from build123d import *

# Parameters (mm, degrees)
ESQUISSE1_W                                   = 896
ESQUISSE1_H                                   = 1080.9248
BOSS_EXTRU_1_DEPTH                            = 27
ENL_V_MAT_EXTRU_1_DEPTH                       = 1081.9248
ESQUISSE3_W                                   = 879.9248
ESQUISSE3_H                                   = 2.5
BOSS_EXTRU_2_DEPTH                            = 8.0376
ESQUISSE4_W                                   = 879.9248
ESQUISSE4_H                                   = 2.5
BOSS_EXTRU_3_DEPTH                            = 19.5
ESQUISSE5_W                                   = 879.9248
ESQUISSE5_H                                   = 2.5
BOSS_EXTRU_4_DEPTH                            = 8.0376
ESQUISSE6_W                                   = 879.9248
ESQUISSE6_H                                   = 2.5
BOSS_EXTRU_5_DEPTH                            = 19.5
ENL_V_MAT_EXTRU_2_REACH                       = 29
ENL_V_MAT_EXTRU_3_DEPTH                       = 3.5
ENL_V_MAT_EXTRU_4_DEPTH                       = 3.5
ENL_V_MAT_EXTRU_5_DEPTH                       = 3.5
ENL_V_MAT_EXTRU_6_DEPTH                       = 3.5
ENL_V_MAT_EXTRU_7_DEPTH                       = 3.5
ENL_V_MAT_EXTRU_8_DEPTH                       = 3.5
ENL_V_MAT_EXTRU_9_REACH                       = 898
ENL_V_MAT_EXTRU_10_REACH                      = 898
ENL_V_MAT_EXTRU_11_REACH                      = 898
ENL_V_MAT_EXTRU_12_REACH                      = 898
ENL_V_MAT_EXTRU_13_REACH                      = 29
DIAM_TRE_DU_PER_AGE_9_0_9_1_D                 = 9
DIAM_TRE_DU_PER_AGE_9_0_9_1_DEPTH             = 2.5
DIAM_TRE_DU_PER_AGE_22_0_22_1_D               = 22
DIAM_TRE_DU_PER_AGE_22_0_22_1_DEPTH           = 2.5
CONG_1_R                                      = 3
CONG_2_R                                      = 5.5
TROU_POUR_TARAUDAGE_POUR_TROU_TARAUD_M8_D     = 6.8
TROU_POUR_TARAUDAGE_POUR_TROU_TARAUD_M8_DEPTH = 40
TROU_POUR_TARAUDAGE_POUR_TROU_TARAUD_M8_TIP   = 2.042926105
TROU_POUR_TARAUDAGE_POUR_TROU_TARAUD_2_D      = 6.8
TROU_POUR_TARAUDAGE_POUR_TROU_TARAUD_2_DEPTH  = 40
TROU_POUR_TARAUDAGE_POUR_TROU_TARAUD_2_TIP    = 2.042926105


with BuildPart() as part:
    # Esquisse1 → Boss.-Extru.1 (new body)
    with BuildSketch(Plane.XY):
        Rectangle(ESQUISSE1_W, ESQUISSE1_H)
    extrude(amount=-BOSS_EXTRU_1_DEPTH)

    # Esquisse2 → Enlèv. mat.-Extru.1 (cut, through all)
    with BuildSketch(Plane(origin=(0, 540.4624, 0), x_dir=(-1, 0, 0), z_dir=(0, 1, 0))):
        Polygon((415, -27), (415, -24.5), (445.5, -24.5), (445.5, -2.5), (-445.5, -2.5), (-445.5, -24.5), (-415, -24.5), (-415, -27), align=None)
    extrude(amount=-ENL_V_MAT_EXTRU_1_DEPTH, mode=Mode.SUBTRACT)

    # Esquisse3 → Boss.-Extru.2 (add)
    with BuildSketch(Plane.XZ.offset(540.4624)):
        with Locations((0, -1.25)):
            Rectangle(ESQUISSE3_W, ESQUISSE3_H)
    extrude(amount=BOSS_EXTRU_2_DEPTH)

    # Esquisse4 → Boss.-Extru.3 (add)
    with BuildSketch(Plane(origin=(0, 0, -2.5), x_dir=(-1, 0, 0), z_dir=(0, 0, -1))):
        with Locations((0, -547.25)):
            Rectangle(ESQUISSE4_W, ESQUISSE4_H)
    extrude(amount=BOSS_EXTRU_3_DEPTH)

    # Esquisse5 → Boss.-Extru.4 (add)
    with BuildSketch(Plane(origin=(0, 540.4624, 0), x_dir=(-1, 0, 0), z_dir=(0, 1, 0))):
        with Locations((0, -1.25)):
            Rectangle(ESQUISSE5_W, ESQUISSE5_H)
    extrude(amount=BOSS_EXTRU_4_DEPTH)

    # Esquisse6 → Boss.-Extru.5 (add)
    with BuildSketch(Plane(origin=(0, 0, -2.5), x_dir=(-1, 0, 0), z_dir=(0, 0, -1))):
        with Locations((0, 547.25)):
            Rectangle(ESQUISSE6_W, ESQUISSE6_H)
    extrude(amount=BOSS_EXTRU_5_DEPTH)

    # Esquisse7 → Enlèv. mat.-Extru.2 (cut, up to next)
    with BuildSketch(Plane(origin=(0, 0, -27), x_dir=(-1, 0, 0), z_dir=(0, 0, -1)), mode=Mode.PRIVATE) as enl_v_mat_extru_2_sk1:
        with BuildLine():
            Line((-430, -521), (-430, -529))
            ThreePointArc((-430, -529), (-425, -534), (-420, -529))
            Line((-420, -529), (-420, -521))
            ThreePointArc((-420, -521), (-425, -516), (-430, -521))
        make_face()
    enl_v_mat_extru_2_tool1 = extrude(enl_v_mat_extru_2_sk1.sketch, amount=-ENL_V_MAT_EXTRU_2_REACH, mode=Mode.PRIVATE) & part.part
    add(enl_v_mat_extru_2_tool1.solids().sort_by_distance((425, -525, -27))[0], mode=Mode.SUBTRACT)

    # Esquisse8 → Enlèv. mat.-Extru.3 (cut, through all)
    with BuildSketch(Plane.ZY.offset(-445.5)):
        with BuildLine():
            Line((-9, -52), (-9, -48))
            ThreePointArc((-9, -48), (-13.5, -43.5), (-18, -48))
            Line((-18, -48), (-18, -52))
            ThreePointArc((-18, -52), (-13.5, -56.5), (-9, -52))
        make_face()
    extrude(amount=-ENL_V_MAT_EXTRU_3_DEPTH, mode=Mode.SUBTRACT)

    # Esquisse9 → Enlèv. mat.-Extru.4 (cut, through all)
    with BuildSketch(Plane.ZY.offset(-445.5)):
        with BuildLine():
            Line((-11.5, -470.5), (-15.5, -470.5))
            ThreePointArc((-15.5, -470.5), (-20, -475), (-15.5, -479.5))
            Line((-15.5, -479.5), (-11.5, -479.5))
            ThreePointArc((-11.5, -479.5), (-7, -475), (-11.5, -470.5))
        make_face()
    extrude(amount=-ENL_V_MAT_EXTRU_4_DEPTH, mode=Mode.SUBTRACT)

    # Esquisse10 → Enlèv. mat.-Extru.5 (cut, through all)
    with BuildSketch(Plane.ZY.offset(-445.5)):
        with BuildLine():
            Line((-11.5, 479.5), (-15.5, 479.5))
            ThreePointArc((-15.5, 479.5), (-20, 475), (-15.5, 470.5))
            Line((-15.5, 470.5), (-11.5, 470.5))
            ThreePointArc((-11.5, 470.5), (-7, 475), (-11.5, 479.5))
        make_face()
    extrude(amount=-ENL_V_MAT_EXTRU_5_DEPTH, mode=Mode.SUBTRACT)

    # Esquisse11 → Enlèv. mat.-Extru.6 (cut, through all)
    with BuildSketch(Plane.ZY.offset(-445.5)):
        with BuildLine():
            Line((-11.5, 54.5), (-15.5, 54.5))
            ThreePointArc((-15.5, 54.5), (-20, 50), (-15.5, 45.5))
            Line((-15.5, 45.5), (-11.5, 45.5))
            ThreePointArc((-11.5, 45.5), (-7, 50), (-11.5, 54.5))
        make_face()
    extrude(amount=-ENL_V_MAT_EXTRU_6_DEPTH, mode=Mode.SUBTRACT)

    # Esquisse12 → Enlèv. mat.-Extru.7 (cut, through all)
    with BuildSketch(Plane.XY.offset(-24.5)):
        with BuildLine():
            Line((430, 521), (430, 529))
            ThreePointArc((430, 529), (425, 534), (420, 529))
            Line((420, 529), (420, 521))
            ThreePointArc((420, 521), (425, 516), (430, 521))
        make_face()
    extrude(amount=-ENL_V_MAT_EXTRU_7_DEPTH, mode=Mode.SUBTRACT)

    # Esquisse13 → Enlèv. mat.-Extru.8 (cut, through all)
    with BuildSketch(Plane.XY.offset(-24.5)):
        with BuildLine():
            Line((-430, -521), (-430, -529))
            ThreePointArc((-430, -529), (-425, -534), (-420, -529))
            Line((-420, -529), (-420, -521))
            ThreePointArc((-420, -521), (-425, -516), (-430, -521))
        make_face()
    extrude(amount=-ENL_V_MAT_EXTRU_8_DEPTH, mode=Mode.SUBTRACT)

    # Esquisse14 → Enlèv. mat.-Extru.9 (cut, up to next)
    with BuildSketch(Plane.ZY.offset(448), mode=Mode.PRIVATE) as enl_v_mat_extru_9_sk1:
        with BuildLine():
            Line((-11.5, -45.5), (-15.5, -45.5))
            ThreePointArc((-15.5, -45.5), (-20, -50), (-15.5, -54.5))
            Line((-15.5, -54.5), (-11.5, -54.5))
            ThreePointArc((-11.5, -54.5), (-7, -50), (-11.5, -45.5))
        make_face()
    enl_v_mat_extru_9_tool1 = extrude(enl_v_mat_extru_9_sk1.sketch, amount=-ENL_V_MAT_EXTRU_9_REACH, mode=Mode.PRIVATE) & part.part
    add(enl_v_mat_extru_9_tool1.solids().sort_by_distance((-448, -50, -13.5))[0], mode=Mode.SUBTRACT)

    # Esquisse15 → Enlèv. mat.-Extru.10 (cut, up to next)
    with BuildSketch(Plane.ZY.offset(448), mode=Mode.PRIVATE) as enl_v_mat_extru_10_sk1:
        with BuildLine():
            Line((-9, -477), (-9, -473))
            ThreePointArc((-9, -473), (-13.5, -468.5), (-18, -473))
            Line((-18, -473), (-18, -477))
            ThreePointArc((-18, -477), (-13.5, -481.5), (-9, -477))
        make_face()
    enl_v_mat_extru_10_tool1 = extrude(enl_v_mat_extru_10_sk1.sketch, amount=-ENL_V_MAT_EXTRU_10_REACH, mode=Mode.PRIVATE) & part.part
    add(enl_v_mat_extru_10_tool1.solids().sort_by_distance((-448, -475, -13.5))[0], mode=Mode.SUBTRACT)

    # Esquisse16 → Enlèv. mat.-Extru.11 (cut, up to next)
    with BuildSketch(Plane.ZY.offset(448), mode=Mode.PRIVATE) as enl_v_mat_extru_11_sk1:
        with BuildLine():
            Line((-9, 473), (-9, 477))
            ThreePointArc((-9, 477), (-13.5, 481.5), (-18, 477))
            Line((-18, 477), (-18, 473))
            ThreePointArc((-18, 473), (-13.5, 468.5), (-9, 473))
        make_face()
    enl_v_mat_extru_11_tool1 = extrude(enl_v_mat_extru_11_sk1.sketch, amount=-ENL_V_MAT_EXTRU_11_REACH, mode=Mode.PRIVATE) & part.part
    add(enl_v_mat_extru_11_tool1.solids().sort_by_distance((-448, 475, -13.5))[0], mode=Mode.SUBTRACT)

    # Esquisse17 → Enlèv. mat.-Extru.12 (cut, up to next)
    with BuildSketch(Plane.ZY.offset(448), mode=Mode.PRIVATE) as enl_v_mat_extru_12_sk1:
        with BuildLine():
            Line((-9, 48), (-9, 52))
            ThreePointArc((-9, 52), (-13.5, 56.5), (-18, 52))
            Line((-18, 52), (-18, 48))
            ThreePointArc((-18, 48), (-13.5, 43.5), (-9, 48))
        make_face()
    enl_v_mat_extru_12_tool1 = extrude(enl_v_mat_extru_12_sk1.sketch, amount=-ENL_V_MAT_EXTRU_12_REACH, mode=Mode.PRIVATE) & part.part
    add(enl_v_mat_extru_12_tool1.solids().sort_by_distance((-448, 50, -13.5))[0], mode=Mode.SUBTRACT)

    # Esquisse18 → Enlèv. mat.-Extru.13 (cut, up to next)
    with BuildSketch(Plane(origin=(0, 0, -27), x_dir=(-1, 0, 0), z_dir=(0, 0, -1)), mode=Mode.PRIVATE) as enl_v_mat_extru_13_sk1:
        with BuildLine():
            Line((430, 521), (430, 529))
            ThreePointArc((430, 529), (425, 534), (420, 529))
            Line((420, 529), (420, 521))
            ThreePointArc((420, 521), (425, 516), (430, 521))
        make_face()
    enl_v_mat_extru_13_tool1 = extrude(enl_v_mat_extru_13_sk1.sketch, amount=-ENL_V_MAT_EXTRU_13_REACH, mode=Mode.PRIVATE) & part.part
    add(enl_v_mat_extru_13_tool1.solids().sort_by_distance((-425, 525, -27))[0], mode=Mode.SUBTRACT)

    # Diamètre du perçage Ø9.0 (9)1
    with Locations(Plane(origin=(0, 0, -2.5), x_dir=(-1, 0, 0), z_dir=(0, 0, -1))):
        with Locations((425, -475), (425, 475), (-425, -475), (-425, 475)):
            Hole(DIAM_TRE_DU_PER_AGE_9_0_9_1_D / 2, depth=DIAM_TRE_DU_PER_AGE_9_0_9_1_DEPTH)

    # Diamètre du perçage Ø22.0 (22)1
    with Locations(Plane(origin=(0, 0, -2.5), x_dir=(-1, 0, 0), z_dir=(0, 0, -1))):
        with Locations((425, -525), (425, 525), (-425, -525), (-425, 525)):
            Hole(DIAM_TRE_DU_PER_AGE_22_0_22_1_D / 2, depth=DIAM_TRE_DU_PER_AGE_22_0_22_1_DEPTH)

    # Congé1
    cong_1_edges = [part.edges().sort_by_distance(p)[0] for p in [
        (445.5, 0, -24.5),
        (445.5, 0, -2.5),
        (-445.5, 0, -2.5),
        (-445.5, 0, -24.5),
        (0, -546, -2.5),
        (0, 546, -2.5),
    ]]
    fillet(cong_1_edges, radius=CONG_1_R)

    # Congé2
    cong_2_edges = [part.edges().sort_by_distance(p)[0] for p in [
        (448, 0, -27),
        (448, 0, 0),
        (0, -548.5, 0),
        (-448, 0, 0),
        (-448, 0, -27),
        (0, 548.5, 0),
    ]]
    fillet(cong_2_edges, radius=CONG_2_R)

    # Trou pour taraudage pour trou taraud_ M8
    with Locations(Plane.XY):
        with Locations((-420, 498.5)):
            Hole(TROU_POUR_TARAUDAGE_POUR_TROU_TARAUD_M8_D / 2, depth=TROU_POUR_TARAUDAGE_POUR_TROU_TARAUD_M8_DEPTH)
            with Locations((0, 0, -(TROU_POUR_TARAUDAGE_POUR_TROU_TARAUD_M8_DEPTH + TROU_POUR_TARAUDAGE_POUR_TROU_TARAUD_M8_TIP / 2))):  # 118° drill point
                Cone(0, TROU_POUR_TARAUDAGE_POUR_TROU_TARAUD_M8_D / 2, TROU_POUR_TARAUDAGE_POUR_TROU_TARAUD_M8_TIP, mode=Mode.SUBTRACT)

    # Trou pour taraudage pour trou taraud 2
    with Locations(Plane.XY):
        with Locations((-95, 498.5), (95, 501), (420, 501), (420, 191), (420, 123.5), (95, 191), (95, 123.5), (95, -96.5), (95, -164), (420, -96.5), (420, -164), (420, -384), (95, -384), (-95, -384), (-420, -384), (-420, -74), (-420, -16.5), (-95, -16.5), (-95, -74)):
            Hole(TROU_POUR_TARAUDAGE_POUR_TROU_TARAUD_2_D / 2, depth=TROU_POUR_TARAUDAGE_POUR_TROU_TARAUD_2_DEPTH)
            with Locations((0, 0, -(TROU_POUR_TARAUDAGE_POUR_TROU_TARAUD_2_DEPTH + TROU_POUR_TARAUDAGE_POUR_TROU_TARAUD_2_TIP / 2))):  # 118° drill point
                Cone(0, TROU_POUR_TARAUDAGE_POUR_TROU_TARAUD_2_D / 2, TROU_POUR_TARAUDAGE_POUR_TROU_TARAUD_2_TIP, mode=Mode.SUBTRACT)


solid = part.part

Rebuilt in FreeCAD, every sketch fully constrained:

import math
import FreeCAD as App
import Part
import Sketcher

V = App.Vector


def edges_at(feature, points):
    """Names of the edges that pass closest to the given points."""
    edges = feature.Shape.Edges
    near = lambda p: min(range(len(edges)), key=lambda i: edges[i].distToShape(Part.Vertex(*p))[0])
    return sorted({f"Edge{near(p) + 1}" for p in points})

doc = App.newDocument("Part")
body = doc.addObject("PartDesign::Body", "Body")

# Sketch on XY plane
sketch1 = body.newObject("Sketcher::SketchObject", "Sketch")
sketch1.AttachmentSupport = (doc.getObject("XY_Plane"), [""])
sketch1.MapMode = "FlatFace"
sketch1.addGeometry(Part.LineSegment(V(-448, 540, 0), V(-448, -540, 0)), False)
sketch1.addGeometry(Part.LineSegment(V(-448, -540, 0), V(448, -540, 0)), False)
sketch1.addGeometry(Part.LineSegment(V(448, -540, 0), V(448, 540, 0)), False)
sketch1.addGeometry(Part.LineSegment(V(448, 540, 0), V(-448, 540, 0)), False)
sketch1.addConstraint(Sketcher.Constraint("Coincident", 0, 2, 1, 1))
sketch1.addConstraint(Sketcher.Constraint("Coincident", 1, 2, 2, 1))
sketch1.addConstraint(Sketcher.Constraint("Coincident", 2, 2, 3, 1))
sketch1.addConstraint(Sketcher.Constraint("Coincident", 3, 2, 0, 1))
sketch1.addConstraint(Sketcher.Constraint("Vertical", 0))
sketch1.addConstraint(Sketcher.Constraint("Horizontal", 1))
sketch1.addConstraint(Sketcher.Constraint("Vertical", 2))
sketch1.addConstraint(Sketcher.Constraint("Horizontal", 3))
sketch1.addConstraint(Sketcher.Constraint("Symmetric", 0, 2, 2, 2, -1, 1))
sketch1.addConstraint(Sketcher.Constraint("DistanceX", 1, 1, 1, 2, 896.0))
sketch1.addConstraint(Sketcher.Constraint("DistanceY", 0, 2, 0, 1, 1080.9248))
pad1 = body.newObject("PartDesign::Pad", "Pad")
pad1.Profile = sketch1
pad1.Length = 27
pad1.Reversed = True

# Sketch on XZ plane
sketch2 = body.newObject("Sketcher::SketchObject", "Sketch001")
sketch2.AttachmentSupport = (doc.getObject("XZ_Plane"), [""])
sketch2.MapMode = "FlatFace"
sketch2.AttachmentOffset = App.Placement(V(0, 0, -540.4624), App.Rotation())
sketch2.addGeometry(Part.LineSegment(V(-415, -27, 0), V(-415, -24.5, 0)), False)
sketch2.addGeometry(Part.LineSegment(V(-415, -24.5, 0), V(-445.5, -24.5, 0)), False)
sketch2.addGeometry(Part.LineSegment(V(-445.5, -24.5, 0), V(-445.5, -2.5, 0)), False)
sketch2.addGeometry(Part.LineSegment(V(-445.5, -2.5, 0), V(445.5, -2.5, 0)), False)
sketch2.addGeometry(Part.LineSegment(V(445.5, -2.5, 0), V(445.5, -24.5, 0)), False)
sketch2.addGeometry(Part.LineSegment(V(445.5, -24.5, 0), V(415, -24.5, 0)), False)
sketch2.addGeometry(Part.LineSegment(V(415, -24.5, 0), V(415, -27, 0)), False)
sketch2.addGeometry(Part.LineSegment(V(415, -27, 0), V(-415, -27, 0)), False)
sketch2.addConstraint(Sketcher.Constraint("Coincident", 0, 2, 1, 1))
sketch2.addConstraint(Sketcher.Constraint("Coincident", 1, 2, 2, 1))
sketch2.addConstraint(Sketcher.Constraint("Coincident", 2, 2, 3, 1))
sketch2.addConstraint(Sketcher.Constraint("Coincident", 3, 2, 4, 1))
sketch2.addConstraint(Sketcher.Constraint("Coincident", 4, 2, 5, 1))
sketch2.addConstraint(Sketcher.Constraint("Coincident", 5, 2, 6, 1))
sketch2.addConstraint(Sketcher.Constraint("Coincident", 6, 2, 7, 1))
sketch2.addConstraint(Sketcher.Constraint("Coincident", 7, 2, 0, 1))
sketch2.addConstraint(Sketcher.Constraint("Vertical", 0))
sketch2.addConstraint(Sketcher.Constraint("Horizontal", 1))
sketch2.addConstraint(Sketcher.Constraint("Vertical", 2))
sketch2.addConstraint(Sketcher.Constraint("Horizontal", 3))
sketch2.addConstraint(Sketcher.Constraint("Vertical", 4))
sketch2.addConstraint(Sketcher.Constraint("Horizontal", 5))
sketch2.addConstraint(Sketcher.Constraint("Vertical", 6))
sketch2.addConstraint(Sketcher.Constraint("Horizontal", 7))
sketch2.addConstraint(Sketcher.Constraint("Symmetric", 1, 2, 4, 2, -2))
sketch2.addConstraint(Sketcher.Constraint("Equal", 1, 5))
sketch2.addConstraint(Sketcher.Constraint("DistanceX", 3, 1, 3, 2, 891.0))
sketch2.addConstraint(Sketcher.Constraint("DistanceX", 7, 2, 7, 1, 830.0))
sketch2.addConstraint(Sketcher.Constraint("DistanceY", 2, 1, 2, 2, 22.0))
sketch2.addConstraint(Sketcher.Constraint("DistanceY", 0, 1, 0, 2, 2.5))
sketch2.addConstraint(Sketcher.Constraint("DistanceY", 6, 2, -1, 1, 27.0))
pocket1 = body.newObject("PartDesign::Pocket", "Pocket")
pocket1.Profile = sketch2
pocket1.Type = "ThroughAll"
pocket1.Reversed = True

# Sketch on XZ plane
sketch3 = body.newObject("Sketcher::SketchObject", "Sketch002")
sketch3.AttachmentSupport = (doc.getObject("XZ_Plane"), [""])
sketch3.MapMode = "FlatFace"
sketch3.AttachmentOffset = App.Placement(V(0, 0, 540.4624), App.Rotation())
sketch3.addGeometry(Part.LineSegment(V(-440, 0, 0), V(-440, -2.5, 0)), False)
sketch3.addGeometry(Part.LineSegment(V(-440, -2.5, 0), V(440, -2.5, 0)), False)
sketch3.addGeometry(Part.LineSegment(V(440, -2.5, 0), V(440, 0, 0)), False)
sketch3.addGeometry(Part.LineSegment(V(440, 0, 0), V(-440, 0, 0)), False)
sketch3.addConstraint(Sketcher.Constraint("Coincident", 0, 2, 1, 1))
sketch3.addConstraint(Sketcher.Constraint("Coincident", 1, 2, 2, 1))
sketch3.addConstraint(Sketcher.Constraint("Coincident", 2, 2, 3, 1))
sketch3.addConstraint(Sketcher.Constraint("Coincident", 3, 2, 0, 1))
sketch3.addConstraint(Sketcher.Constraint("Vertical", 0))
sketch3.addConstraint(Sketcher.Constraint("Horizontal", 1))
sketch3.addConstraint(Sketcher.Constraint("Vertical", 2))
sketch3.addConstraint(Sketcher.Constraint("Horizontal", 3))
sketch3.addConstraint(Sketcher.Constraint("Symmetric", 2, 2, 3, 2, -1, 1))
sketch3.addConstraint(Sketcher.Constraint("DistanceY", 0, 2, 0, 1, 2.5))
sketch3.addConstraint(Sketcher.Constraint("DistanceX", 1, 1, 1, 2, 879.9248))
pad2 = body.newObject("PartDesign::Pad", "Pad001")
pad2.Profile = sketch3
pad2.Length = 8.0376

# Sketch on XY plane
sketch4 = body.newObject("Sketcher::SketchObject", "Sketch003")
sketch4.AttachmentSupport = (doc.getObject("XY_Plane"), [""])
sketch4.MapMode = "FlatFace"
sketch4.AttachmentOffset = App.Placement(V(0, 0, -2.5), App.Rotation())
sketch4.addGeometry(Part.LineSegment(V(440, -546, 0), V(440, -548.5, 0)), False)
sketch4.addGeometry(Part.LineSegment(V(440, -548.5, 0), V(-440, -548.5, 0)), False)
sketch4.addGeometry(Part.LineSegment(V(-440, -548.5, 0), V(-440, -546, 0)), False)
sketch4.addGeometry(Part.LineSegment(V(-440, -546, 0), V(440, -546, 0)), False)
sketch4.addConstraint(Sketcher.Constraint("Coincident", 0, 2, 1, 1))
sketch4.addConstraint(Sketcher.Constraint("Coincident", 1, 2, 2, 1))
sketch4.addConstraint(Sketcher.Constraint("Coincident", 2, 2, 3, 1))
sketch4.addConstraint(Sketcher.Constraint("Coincident", 3, 2, 0, 1))
sketch4.addConstraint(Sketcher.Constraint("Vertical", 0))
sketch4.addConstraint(Sketcher.Constraint("Horizontal", 1))
sketch4.addConstraint(Sketcher.Constraint("Vertical", 2))
sketch4.addConstraint(Sketcher.Constraint("Horizontal", 3))
sketch4.addConstraint(Sketcher.Constraint("DistanceY", 0, 2, 0, 1, 2.5))
sketch4.addConstraint(Sketcher.Constraint("DistanceY", 2, 2, -1, 1, 546.0))
sketch4.addConstraint(Sketcher.Constraint("DistanceX", 1, 2, 1, 1, 879.9248))
sketch4.addConstraint(Sketcher.Constraint("DistanceX", -1, 1, 0, 2, 439.9624))
pad3 = body.newObject("PartDesign::Pad", "Pad002")
pad3.Profile = sketch4
pad3.Length = 19.5
pad3.Reversed = True

# Sketch on XZ plane
sketch5 = body.newObject("Sketcher::SketchObject", "Sketch004")
sketch5.AttachmentSupport = (doc.getObject("XZ_Plane"), [""])
sketch5.MapMode = "FlatFace"
sketch5.AttachmentOffset = App.Placement(V(0, 0, -540.4624), App.Rotation())
sketch5.addGeometry(Part.LineSegment(V(440, 0, 0), V(440, -2.5, 0)), False)
sketch5.addGeometry(Part.LineSegment(V(440, -2.5, 0), V(-440, -2.5, 0)), False)
sketch5.addGeometry(Part.LineSegment(V(-440, -2.5, 0), V(-440, 0, 0)), False)
sketch5.addGeometry(Part.LineSegment(V(-440, 0, 0), V(440, 0, 0)), False)
sketch5.addConstraint(Sketcher.Constraint("Coincident", 0, 2, 1, 1))
sketch5.addConstraint(Sketcher.Constraint("Coincident", 1, 2, 2, 1))
sketch5.addConstraint(Sketcher.Constraint("Coincident", 2, 2, 3, 1))
sketch5.addConstraint(Sketcher.Constraint("Coincident", 3, 2, 0, 1))
sketch5.addConstraint(Sketcher.Constraint("Vertical", 0))
sketch5.addConstraint(Sketcher.Constraint("Horizontal", 1))
sketch5.addConstraint(Sketcher.Constraint("Vertical", 2))
sketch5.addConstraint(Sketcher.Constraint("Horizontal", 3))
sketch5.addConstraint(Sketcher.Constraint("Symmetric", 2, 2, 3, 2, -1, 1))
sketch5.addConstraint(Sketcher.Constraint("DistanceY", 0, 2, 0, 1, 2.5))
sketch5.addConstraint(Sketcher.Constraint("DistanceX", 1, 2, 1, 1, 879.9248))
pad4 = body.newObject("PartDesign::Pad", "Pad003")
pad4.Profile = sketch5
pad4.Length = 8.0376
pad4.Reversed = True

# Sketch on XY plane
sketch6 = body.newObject("Sketcher::SketchObject", "Sketch005")
sketch6.AttachmentSupport = (doc.getObject("XY_Plane"), [""])
sketch6.MapMode = "FlatFace"
sketch6.AttachmentOffset = App.Placement(V(0, 0, -2.5), App.Rotation())
sketch6.addGeometry(Part.LineSegment(V(440, 548.5, 0), V(440, 546, 0)), False)
sketch6.addGeometry(Part.LineSegment(V(440, 546, 0), V(-440, 546, 0)), False)
sketch6.addGeometry(Part.LineSegment(V(-440, 546, 0), V(-440, 548.5, 0)), False)
sketch6.addGeometry(Part.LineSegment(V(-440, 548.5, 0), V(440, 548.5, 0)), False)
sketch6.addConstraint(Sketcher.Constraint("Coincident", 0, 2, 1, 1))
sketch6.addConstraint(Sketcher.Constraint("Coincident", 1, 2, 2, 1))
sketch6.addConstraint(Sketcher.Constraint("Coincident", 2, 2, 3, 1))
sketch6.addConstraint(Sketcher.Constraint("Coincident", 3, 2, 0, 1))
sketch6.addConstraint(Sketcher.Constraint("Vertical", 0))
sketch6.addConstraint(Sketcher.Constraint("Horizontal", 1))
sketch6.addConstraint(Sketcher.Constraint("Vertical", 2))
sketch6.addConstraint(Sketcher.Constraint("Horizontal", 3))
sketch6.addConstraint(Sketcher.Constraint("DistanceY", 0, 2, 0, 1, 2.5))
sketch6.addConstraint(Sketcher.Constraint("DistanceY", -1, 1, 0, 2, 546.0))
sketch6.addConstraint(Sketcher.Constraint("DistanceX", 1, 2, 1, 1, 879.9248))
sketch6.addConstraint(Sketcher.Constraint("DistanceX", -1, 1, 0, 2, 439.9624))
pad5 = body.newObject("PartDesign::Pad", "Pad004")
pad5.Profile = sketch6
pad5.Length = 19.5
pad5.Reversed = True

# Sketch on XY plane
sketch7 = body.newObject("Sketcher::SketchObject", "Sketch006")
sketch7.AttachmentSupport = (doc.getObject("XY_Plane"), [""])
sketch7.MapMode = "FlatFace"
sketch7.AttachmentOffset = App.Placement(V(0, 0, -27), App.Rotation())
sketch7.addGeometry(Part.LineSegment(V(430, -521, 0), V(430, -529, 0)), False)
sketch7.addGeometry(Part.ArcOfCircle(Part.Circle(V(425, -529, 0), V(0, 0, 1), 5), math.radians(180), math.radians(360)), False)
sketch7.addGeometry(Part.LineSegment(V(420, -529, 0), V(420, -521, 0)), False)
sketch7.addGeometry(Part.ArcOfCircle(Part.Circle(V(425, -521, 0), V(0, 0, 1), 5), math.radians(0), math.radians(180)), False)
sketch7.addConstraint(Sketcher.Constraint("Tangent", 0, 2, 1, 2))
sketch7.addConstraint(Sketcher.Constraint("Tangent", 1, 1, 2, 1))
sketch7.addConstraint(Sketcher.Constraint("Tangent", 2, 2, 3, 2))
sketch7.addConstraint(Sketcher.Constraint("Tangent", 3, 1, 0, 1))
sketch7.addConstraint(Sketcher.Constraint("Vertical", 0))
sketch7.addConstraint(Sketcher.Constraint("Vertical", 2))
sketch7.addConstraint(Sketcher.Constraint("Radius", 1, 5.0))
sketch7.addConstraint(Sketcher.Constraint("DistanceY", 0, 2, 0, 1, 8.0))
sketch7.addConstraint(Sketcher.Constraint("DistanceX", -1, 1, 1, 3, 425.0))
sketch7.addConstraint(Sketcher.Constraint("DistanceY", 1, 3, -1, 1, 529.0))
pocket2 = body.newObject("PartDesign::Pocket", "Pocket001")
pocket2.Profile = sketch7
pocket2.Type = "UpToFirst"
pocket2.Reversed = True

# Sketch on YZ plane
sketch8 = body.newObject("Sketcher::SketchObject", "Sketch007")
sketch8.AttachmentSupport = (doc.getObject("YZ_Plane"), [""])
sketch8.MapMode = "FlatFace"
sketch8.AttachmentOffset = App.Placement(V(0, 0, 445.5), App.Rotation())
sketch8.addGeometry(Part.LineSegment(V(-52, -9, 0), V(-48, -9, 0)), False)
sketch8.addGeometry(Part.ArcOfCircle(Part.Circle(V(-48, -13.5, 0), V(0, 0, 1), 4.5), math.radians(-90), math.radians(90)), False)
sketch8.addGeometry(Part.LineSegment(V(-48, -18, 0), V(-52, -18, 0)), False)
sketch8.addGeometry(Part.ArcOfCircle(Part.Circle(V(-52, -13.5, 0), V(0, 0, 1), 4.5), math.radians(90), math.radians(270)), False)
sketch8.addConstraint(Sketcher.Constraint("Tangent", 0, 2, 1, 2))
sketch8.addConstraint(Sketcher.Constraint("Tangent", 1, 1, 2, 1))
sketch8.addConstraint(Sketcher.Constraint("Tangent", 2, 2, 3, 2))
sketch8.addConstraint(Sketcher.Constraint("Tangent", 3, 1, 0, 1))
sketch8.addConstraint(Sketcher.Constraint("Horizontal", 0))
sketch8.addConstraint(Sketcher.Constraint("Horizontal", 2))
sketch8.addConstraint(Sketcher.Constraint("Radius", 1, 4.5))
sketch8.addConstraint(Sketcher.Constraint("DistanceX", 0, 1, 0, 2, 4.0))
sketch8.addConstraint(Sketcher.Constraint("DistanceX", 1, 3, -1, 1, 48.0))
sketch8.addConstraint(Sketcher.Constraint("DistanceY", 0, 2, -1, 1, 9.0))
pocket3 = body.newObject("PartDesign::Pocket", "Pocket002")
pocket3.Profile = sketch8
pocket3.Type = "ThroughAll"
pocket3.Reversed = True

# Sketch on YZ plane
sketch9 = body.newObject("Sketcher::SketchObject", "Sketch008")
sketch9.AttachmentSupport = (doc.getObject("YZ_Plane"), [""])
sketch9.MapMode = "FlatFace"
sketch9.AttachmentOffset = App.Placement(V(0, 0, 445.5), App.Rotation())
sketch9.addGeometry(Part.LineSegment(V(-470.5, -11.5, 0), V(-470.5, -15.5, 0)), False)
sketch9.addGeometry(Part.ArcOfCircle(Part.Circle(V(-475, -15.5, 0), V(0, 0, 1), 4.5), math.radians(180), math.radians(360)), False)
sketch9.addGeometry(Part.LineSegment(V(-479.5, -15.5, 0), V(-479.5, -11.5, 0)), False)
sketch9.addGeometry(Part.ArcOfCircle(Part.Circle(V(-475, -11.5, 0), V(0, 0, 1), 4.5), math.radians(0), math.radians(180)), False)
sketch9.addConstraint(Sketcher.Constraint("Tangent", 0, 2, 1, 2))
sketch9.addConstraint(Sketcher.Constraint("Tangent", 1, 1, 2, 1))
sketch9.addConstraint(Sketcher.Constraint("Tangent", 2, 2, 3, 2))
sketch9.addConstraint(Sketcher.Constraint("Tangent", 3, 1, 0, 1))
sketch9.addConstraint(Sketcher.Constraint("Vertical", 0))
sketch9.addConstraint(Sketcher.Constraint("Vertical", 2))
sketch9.addConstraint(Sketcher.Constraint("Radius", 1, 4.5))
sketch9.addConstraint(Sketcher.Constraint("DistanceY", 0, 2, 0, 1, 4.0))
sketch9.addConstraint(Sketcher.Constraint("DistanceX", 1, 3, -1, 1, 475.0))
sketch9.addConstraint(Sketcher.Constraint("DistanceY", 1, 3, -1, 1, 15.5))
pocket4 = body.newObject("PartDesign::Pocket", "Pocket003")
pocket4.Profile = sketch9
pocket4.Type = "ThroughAll"
pocket4.Reversed = True

# Sketch on YZ plane
sketch10 = body.newObject("Sketcher::SketchObject", "Sketch009")
sketch10.AttachmentSupport = (doc.getObject("YZ_Plane"), [""])
sketch10.MapMode = "FlatFace"
sketch10.AttachmentOffset = App.Placement(V(0, 0, 445.5), App.Rotation())
sketch10.addGeometry(Part.LineSegment(V(479.5, -11.5, 0), V(479.5, -15.5, 0)), False)
sketch10.addGeometry(Part.ArcOfCircle(Part.Circle(V(475, -15.5, 0), V(0, 0, 1), 4.5), math.radians(180), math.radians(360)), False)
sketch10.addGeometry(Part.LineSegment(V(470.5, -15.5, 0), V(470.5, -11.5, 0)), False)
sketch10.addGeometry(Part.ArcOfCircle(Part.Circle(V(475, -11.5, 0), V(0, 0, 1), 4.5), math.radians(0), math.radians(180)), False)
sketch10.addConstraint(Sketcher.Constraint("Tangent", 0, 2, 1, 2))
sketch10.addConstraint(Sketcher.Constraint("Tangent", 1, 1, 2, 1))
sketch10.addConstraint(Sketcher.Constraint("Tangent", 2, 2, 3, 2))
sketch10.addConstraint(Sketcher.Constraint("Tangent", 3, 1, 0, 1))
sketch10.addConstraint(Sketcher.Constraint("Vertical", 0))
sketch10.addConstraint(Sketcher.Constraint("Vertical", 2))
sketch10.addConstraint(Sketcher.Constraint("Radius", 1, 4.5))
sketch10.addConstraint(Sketcher.Constraint("DistanceY", 0, 2, 0, 1, 4.0))
sketch10.addConstraint(Sketcher.Constraint("DistanceX", -1, 1, 1, 3, 475.0))
sketch10.addConstraint(Sketcher.Constraint("DistanceY", 1, 3, -1, 1, 15.5))
pocket5 = body.newObject("PartDesign::Pocket", "Pocket004")
pocket5.Profile = sketch10
pocket5.Type = "ThroughAll"
pocket5.Reversed = True

# Sketch on YZ plane
sketch11 = body.newObject("Sketcher::SketchObject", "Sketch010")
sketch11.AttachmentSupport = (doc.getObject("YZ_Plane"), [""])
sketch11.MapMode = "FlatFace"
sketch11.AttachmentOffset = App.Placement(V(0, 0, 445.5), App.Rotation())
sketch11.addGeometry(Part.LineSegment(V(54.5, -11.5, 0), V(54.5, -15.5, 0)), False)
sketch11.addGeometry(Part.ArcOfCircle(Part.Circle(V(50, -15.5, 0), V(0, 0, 1), 4.5), math.radians(180), math.radians(360)), False)
sketch11.addGeometry(Part.LineSegment(V(45.5, -15.5, 0), V(45.5, -11.5, 0)), False)
sketch11.addGeometry(Part.ArcOfCircle(Part.Circle(V(50, -11.5, 0), V(0, 0, 1), 4.5), math.radians(0), math.radians(180)), False)
sketch11.addConstraint(Sketcher.Constraint("Tangent", 0, 2, 1, 2))
sketch11.addConstraint(Sketcher.Constraint("Tangent", 1, 1, 2, 1))
sketch11.addConstraint(Sketcher.Constraint("Tangent", 2, 2, 3, 2))
sketch11.addConstraint(Sketcher.Constraint("Tangent", 3, 1, 0, 1))
sketch11.addConstraint(Sketcher.Constraint("Vertical", 0))
sketch11.addConstraint(Sketcher.Constraint("Vertical", 2))
sketch11.addConstraint(Sketcher.Constraint("Radius", 1, 4.5))
sketch11.addConstraint(Sketcher.Constraint("DistanceY", 0, 2, 0, 1, 4.0))
sketch11.addConstraint(Sketcher.Constraint("DistanceX", -1, 1, 1, 3, 50.0))
sketch11.addConstraint(Sketcher.Constraint("DistanceY", 1, 3, -1, 1, 15.5))
pocket6 = body.newObject("PartDesign::Pocket", "Pocket005")
pocket6.Profile = sketch11
pocket6.Type = "ThroughAll"
pocket6.Reversed = True

# Sketch on XY plane
sketch12 = body.newObject("Sketcher::SketchObject", "Sketch011")
sketch12.AttachmentSupport = (doc.getObject("XY_Plane"), [""])
sketch12.MapMode = "FlatFace"
sketch12.AttachmentOffset = App.Placement(V(0, 0, -24.5), App.Rotation())
sketch12.addGeometry(Part.LineSegment(V(430, 521, 0), V(430, 529, 0)), False)
sketch12.addGeometry(Part.ArcOfCircle(Part.Circle(V(425, 529, 0), V(0, 0, 1), 5), math.radians(0), math.radians(180)), False)
sketch12.addGeometry(Part.LineSegment(V(420, 529, 0), V(420, 521, 0)), False)
sketch12.addGeometry(Part.ArcOfCircle(Part.Circle(V(425, 521, 0), V(0, 0, 1), 5), math.radians(180), math.radians(360)), False)
sketch12.addConstraint(Sketcher.Constraint("Tangent", 0, 2, 1, 1))
sketch12.addConstraint(Sketcher.Constraint("Tangent", 1, 2, 2, 1))
sketch12.addConstraint(Sketcher.Constraint("Tangent", 2, 2, 3, 1))
sketch12.addConstraint(Sketcher.Constraint("Tangent", 3, 2, 0, 1))
sketch12.addConstraint(Sketcher.Constraint("Vertical", 0))
sketch12.addConstraint(Sketcher.Constraint("Vertical", 2))
sketch12.addConstraint(Sketcher.Constraint("Radius", 1, 5.0))
sketch12.addConstraint(Sketcher.Constraint("DistanceY", 0, 1, 0, 2, 8.0))
sketch12.addConstraint(Sketcher.Constraint("DistanceX", -1, 1, 1, 3, 425.0))
sketch12.addConstraint(Sketcher.Constraint("DistanceY", -1, 1, 1, 3, 529.0))
pocket7 = body.newObject("PartDesign::Pocket", "Pocket006")
pocket7.Profile = sketch12
pocket7.Type = "ThroughAll"

# Sketch on XY plane
sketch13 = body.newObject("Sketcher::SketchObject", "Sketch012")
sketch13.AttachmentSupport = (doc.getObject("XY_Plane"), [""])
sketch13.MapMode = "FlatFace"
sketch13.AttachmentOffset = App.Placement(V(0, 0, -24.5), App.Rotation())
sketch13.addGeometry(Part.LineSegment(V(-430, -521, 0), V(-430, -529, 0)), False)
sketch13.addGeometry(Part.ArcOfCircle(Part.Circle(V(-425, -529, 0), V(0, 0, 1), 5), math.radians(180), math.radians(360)), False)
sketch13.addGeometry(Part.LineSegment(V(-420, -529, 0), V(-420, -521, 0)), False)
sketch13.addGeometry(Part.ArcOfCircle(Part.Circle(V(-425, -521, 0), V(0, 0, 1), 5), math.radians(0), math.radians(180)), False)
sketch13.addConstraint(Sketcher.Constraint("Tangent", 0, 2, 1, 1))
sketch13.addConstraint(Sketcher.Constraint("Tangent", 1, 2, 2, 1))
sketch13.addConstraint(Sketcher.Constraint("Tangent", 2, 2, 3, 1))
sketch13.addConstraint(Sketcher.Constraint("Tangent", 3, 2, 0, 1))
sketch13.addConstraint(Sketcher.Constraint("Vertical", 0))
sketch13.addConstraint(Sketcher.Constraint("Vertical", 2))
sketch13.addConstraint(Sketcher.Constraint("Radius", 1, 5.0))
sketch13.addConstraint(Sketcher.Constraint("DistanceY", 0, 2, 0, 1, 8.0))
sketch13.addConstraint(Sketcher.Constraint("DistanceX", 1, 3, -1, 1, 425.0))
sketch13.addConstraint(Sketcher.Constraint("DistanceY", 1, 3, -1, 1, 529.0))
pocket8 = body.newObject("PartDesign::Pocket", "Pocket007")
pocket8.Profile = sketch13
pocket8.Type = "ThroughAll"

# Sketch on YZ plane
sketch14 = body.newObject("Sketcher::SketchObject", "Sketch013")
sketch14.AttachmentSupport = (doc.getObject("YZ_Plane"), [""])
sketch14.MapMode = "FlatFace"
sketch14.AttachmentOffset = App.Placement(V(0, 0, -448), App.Rotation())
sketch14.addGeometry(Part.LineSegment(V(-45.5, -11.5, 0), V(-45.5, -15.5, 0)), False)
sketch14.addGeometry(Part.ArcOfCircle(Part.Circle(V(-50, -15.5, 0), V(0, 0, 1), 4.5), math.radians(180), math.radians(360)), False)
sketch14.addGeometry(Part.LineSegment(V(-54.5, -15.5, 0), V(-54.5, -11.5, 0)), False)
sketch14.addGeometry(Part.ArcOfCircle(Part.Circle(V(-50, -11.5, 0), V(0, 0, 1), 4.5), math.radians(0), math.radians(180)), False)
sketch14.addConstraint(Sketcher.Constraint("Tangent", 0, 2, 1, 2))
sketch14.addConstraint(Sketcher.Constraint("Tangent", 1, 1, 2, 1))
sketch14.addConstraint(Sketcher.Constraint("Tangent", 2, 2, 3, 2))
sketch14.addConstraint(Sketcher.Constraint("Tangent", 3, 1, 0, 1))
sketch14.addConstraint(Sketcher.Constraint("Vertical", 0))
sketch14.addConstraint(Sketcher.Constraint("Vertical", 2))
sketch14.addConstraint(Sketcher.Constraint("Radius", 1, 4.5))
sketch14.addConstraint(Sketcher.Constraint("DistanceY", 0, 2, 0, 1, 4.0))
sketch14.addConstraint(Sketcher.Constraint("DistanceX", 1, 3, -1, 1, 50.0))
sketch14.addConstraint(Sketcher.Constraint("DistanceY", 1, 3, -1, 1, 15.5))
pocket9 = body.newObject("PartDesign::Pocket", "Pocket008")
pocket9.Profile = sketch14
pocket9.Type = "UpToFirst"
pocket9.Reversed = True

# Sketch on YZ plane
sketch15 = body.newObject("Sketcher::SketchObject", "Sketch014")
sketch15.AttachmentSupport = (doc.getObject("YZ_Plane"), [""])
sketch15.MapMode = "FlatFace"
sketch15.AttachmentOffset = App.Placement(V(0, 0, -448), App.Rotation())
sketch15.addGeometry(Part.LineSegment(V(-477, -9, 0), V(-473, -9, 0)), False)
sketch15.addGeometry(Part.ArcOfCircle(Part.Circle(V(-473, -13.5, 0), V(0, 0, 1), 4.5), math.radians(-90), math.radians(90)), False)
sketch15.addGeometry(Part.LineSegment(V(-473, -18, 0), V(-477, -18, 0)), False)
sketch15.addGeometry(Part.ArcOfCircle(Part.Circle(V(-477, -13.5, 0), V(0, 0, 1), 4.5), math.radians(90), math.radians(270)), False)
sketch15.addConstraint(Sketcher.Constraint("Tangent", 0, 2, 1, 2))
sketch15.addConstraint(Sketcher.Constraint("Tangent", 1, 1, 2, 1))
sketch15.addConstraint(Sketcher.Constraint("Tangent", 2, 2, 3, 2))
sketch15.addConstraint(Sketcher.Constraint("Tangent", 3, 1, 0, 1))
sketch15.addConstraint(Sketcher.Constraint("Horizontal", 0))
sketch15.addConstraint(Sketcher.Constraint("Horizontal", 2))
sketch15.addConstraint(Sketcher.Constraint("Radius", 1, 4.5))
sketch15.addConstraint(Sketcher.Constraint("DistanceX", 0, 1, 0, 2, 4.0))
sketch15.addConstraint(Sketcher.Constraint("DistanceX", 1, 3, -1, 1, 473.0))
sketch15.addConstraint(Sketcher.Constraint("DistanceY", 0, 2, -1, 1, 9.0))
pocket10 = body.newObject("PartDesign::Pocket", "Pocket009")
pocket10.Profile = sketch15
pocket10.Type = "UpToFirst"
pocket10.Reversed = True

# Sketch on YZ plane
sketch16 = body.newObject("Sketcher::SketchObject", "Sketch015")
sketch16.AttachmentSupport = (doc.getObject("YZ_Plane"), [""])
sketch16.MapMode = "FlatFace"
sketch16.AttachmentOffset = App.Placement(V(0, 0, -448), App.Rotation())
sketch16.addGeometry(Part.LineSegment(V(473, -9, 0), V(477, -9, 0)), False)
sketch16.addGeometry(Part.ArcOfCircle(Part.Circle(V(477, -13.5, 0), V(0, 0, 1), 4.5), math.radians(-90), math.radians(90)), False)
sketch16.addGeometry(Part.LineSegment(V(477, -18, 0), V(473, -18, 0)), False)
sketch16.addGeometry(Part.ArcOfCircle(Part.Circle(V(473, -13.5, 0), V(0, 0, 1), 4.5), math.radians(90), math.radians(270)), False)
sketch16.addConstraint(Sketcher.Constraint("Tangent", 0, 2, 1, 2))
sketch16.addConstraint(Sketcher.Constraint("Tangent", 1, 1, 2, 1))
sketch16.addConstraint(Sketcher.Constraint("Tangent", 2, 2, 3, 2))
sketch16.addConstraint(Sketcher.Constraint("Tangent", 3, 1, 0, 1))
sketch16.addConstraint(Sketcher.Constraint("Horizontal", 0))
sketch16.addConstraint(Sketcher.Constraint("Horizontal", 2))
sketch16.addConstraint(Sketcher.Constraint("Radius", 1, 4.5))
sketch16.addConstraint(Sketcher.Constraint("DistanceX", 0, 1, 0, 2, 4.0))
sketch16.addConstraint(Sketcher.Constraint("DistanceX", -1, 1, 1, 3, 477.0))
sketch16.addConstraint(Sketcher.Constraint("DistanceY", 0, 2, -1, 1, 9.0))
pocket11 = body.newObject("PartDesign::Pocket", "Pocket010")
pocket11.Profile = sketch16
pocket11.Type = "UpToFirst"
pocket11.Reversed = True

# Sketch on YZ plane
sketch17 = body.newObject("Sketcher::SketchObject", "Sketch016")
sketch17.AttachmentSupport = (doc.getObject("YZ_Plane"), [""])
sketch17.MapMode = "FlatFace"
sketch17.AttachmentOffset = App.Placement(V(0, 0, -448), App.Rotation())
sketch17.addGeometry(Part.LineSegment(V(48, -9, 0), V(52, -9, 0)), False)
sketch17.addGeometry(Part.ArcOfCircle(Part.Circle(V(52, -13.5, 0), V(0, 0, 1), 4.5), math.radians(-90), math.radians(90)), False)
sketch17.addGeometry(Part.LineSegment(V(52, -18, 0), V(48, -18, 0)), False)
sketch17.addGeometry(Part.ArcOfCircle(Part.Circle(V(48, -13.5, 0), V(0, 0, 1), 4.5), math.radians(90), math.radians(270)), False)
sketch17.addConstraint(Sketcher.Constraint("Tangent", 0, 2, 1, 2))
sketch17.addConstraint(Sketcher.Constraint("Tangent", 1, 1, 2, 1))
sketch17.addConstraint(Sketcher.Constraint("Tangent", 2, 2, 3, 2))
sketch17.addConstraint(Sketcher.Constraint("Tangent", 3, 1, 0, 1))
sketch17.addConstraint(Sketcher.Constraint("Horizontal", 0))
sketch17.addConstraint(Sketcher.Constraint("Horizontal", 2))
sketch17.addConstraint(Sketcher.Constraint("Radius", 1, 4.5))
sketch17.addConstraint(Sketcher.Constraint("DistanceX", 0, 1, 0, 2, 4.0))
sketch17.addConstraint(Sketcher.Constraint("DistanceX", -1, 1, 1, 3, 52.0))
sketch17.addConstraint(Sketcher.Constraint("DistanceY", 0, 2, -1, 1, 9.0))
pocket12 = body.newObject("PartDesign::Pocket", "Pocket011")
pocket12.Profile = sketch17
pocket12.Type = "UpToFirst"
pocket12.Reversed = True

# Sketch on XY plane
sketch18 = body.newObject("Sketcher::SketchObject", "Sketch017")
sketch18.AttachmentSupport = (doc.getObject("XY_Plane"), [""])
sketch18.MapMode = "FlatFace"
sketch18.AttachmentOffset = App.Placement(V(0, 0, -27), App.Rotation())
sketch18.addGeometry(Part.LineSegment(V(-430, 521, 0), V(-430, 529, 0)), False)
sketch18.addGeometry(Part.ArcOfCircle(Part.Circle(V(-425, 529, 0), V(0, 0, 1), 5), math.radians(0), math.radians(180)), False)
sketch18.addGeometry(Part.LineSegment(V(-420, 529, 0), V(-420, 521, 0)), False)
sketch18.addGeometry(Part.ArcOfCircle(Part.Circle(V(-425, 521, 0), V(0, 0, 1), 5), math.radians(180), math.radians(360)), False)
sketch18.addConstraint(Sketcher.Constraint("Tangent", 0, 2, 1, 2))
sketch18.addConstraint(Sketcher.Constraint("Tangent", 1, 1, 2, 1))
sketch18.addConstraint(Sketcher.Constraint("Tangent", 2, 2, 3, 2))
sketch18.addConstraint(Sketcher.Constraint("Tangent", 3, 1, 0, 1))
sketch18.addConstraint(Sketcher.Constraint("Vertical", 0))
sketch18.addConstraint(Sketcher.Constraint("Vertical", 2))
sketch18.addConstraint(Sketcher.Constraint("Radius", 1, 5.0))
sketch18.addConstraint(Sketcher.Constraint("DistanceY", 0, 1, 0, 2, 8.0))
sketch18.addConstraint(Sketcher.Constraint("DistanceX", 1, 3, -1, 1, 425.0))
sketch18.addConstraint(Sketcher.Constraint("DistanceY", -1, 1, 1, 3, 529.0))
pocket13 = body.newObject("PartDesign::Pocket", "Pocket012")
pocket13.Profile = sketch18
pocket13.Type = "UpToFirst"
pocket13.Reversed = True

# Sketch on XY plane
sketch19 = body.newObject("Sketcher::SketchObject", "Sketch018")
sketch19.AttachmentSupport = (doc.getObject("XY_Plane"), [""])
sketch19.MapMode = "FlatFace"
sketch19.AttachmentOffset = App.Placement(V(0, 0, -2.5), App.Rotation())
sketch19.addGeometry(Part.Circle(V(-425, -475, 0), V(0, 0, 1), 4.5), False)
sketch19.addGeometry(Part.Circle(V(-425, 475, 0), V(0, 0, 1), 4.5), False)
sketch19.addGeometry(Part.Circle(V(425, -475, 0), V(0, 0, 1), 4.5), False)
sketch19.addGeometry(Part.Circle(V(425, 475, 0), V(0, 0, 1), 4.5), False)
sketch19.addConstraint(Sketcher.Constraint("Equal", 0, 1))
sketch19.addConstraint(Sketcher.Constraint("Equal", 1, 2))
sketch19.addConstraint(Sketcher.Constraint("Equal", 2, 3))
sketch19.addConstraint(Sketcher.Constraint("Symmetric", 1, 3, 2, 3, -1, 1))
sketch19.addConstraint(Sketcher.Constraint("Symmetric", 0, 3, 3, 3, -1, 1))
sketch19.addConstraint(Sketcher.Constraint("Symmetric", 0, 3, 2, 3, -2))
sketch19.addConstraint(Sketcher.Constraint("Diameter", 0, 9.0))
sketch19.addConstraint(Sketcher.Constraint("DistanceX", 0, 3, -1, 1, 425.0))
sketch19.addConstraint(Sketcher.Constraint("DistanceY", 0, 3, -1, 1, 475.0))
doc.recompute()
hole = body.newObject("PartDesign::Hole", "Hole")
hole.Profile = sketch19
hole.ThreadType = "None"
hole.Diameter = 9
hole.DepthType = "Dimension"
hole.Depth = 2.5
hole.DrillPoint = "Flat"
hole.Reversed = True

# Sketch on XY plane
sketch20 = body.newObject("Sketcher::SketchObject", "Sketch019")
sketch20.AttachmentSupport = (doc.getObject("XY_Plane"), [""])
sketch20.MapMode = "FlatFace"
sketch20.AttachmentOffset = App.Placement(V(0, 0, -2.5), App.Rotation())
sketch20.addGeometry(Part.Circle(V(-425, -525, 0), V(0, 0, 1), 11), False)
sketch20.addGeometry(Part.Circle(V(-425, 525, 0), V(0, 0, 1), 11), False)
sketch20.addGeometry(Part.Circle(V(425, -525, 0), V(0, 0, 1), 11), False)
sketch20.addGeometry(Part.Circle(V(425, 525, 0), V(0, 0, 1), 11), False)
sketch20.addConstraint(Sketcher.Constraint("Equal", 0, 1))
sketch20.addConstraint(Sketcher.Constraint("Equal", 1, 2))
sketch20.addConstraint(Sketcher.Constraint("Equal", 2, 3))
sketch20.addConstraint(Sketcher.Constraint("Symmetric", 1, 3, 2, 3, -1, 1))
sketch20.addConstraint(Sketcher.Constraint("Symmetric", 0, 3, 3, 3, -1, 1))
sketch20.addConstraint(Sketcher.Constraint("Symmetric", 0, 3, 2, 3, -2))
sketch20.addConstraint(Sketcher.Constraint("Diameter", 0, 22.0))
sketch20.addConstraint(Sketcher.Constraint("DistanceX", 0, 3, -1, 1, 425.0))
sketch20.addConstraint(Sketcher.Constraint("DistanceY", 0, 3, -1, 1, 525.0))
doc.recompute()
hole2 = body.newObject("PartDesign::Hole", "Hole001")
hole2.Profile = sketch20
hole2.ThreadType = "None"
hole2.Diameter = 22
hole2.DepthType = "Dimension"
hole2.Depth = 2.5
hole2.DrillPoint = "Flat"
hole2.Reversed = True
doc.recompute()

fillet = body.newObject("PartDesign::Fillet", "Fillet")
fillet.Base = (hole2, edges_at(hole2, [
    (445.5, 0, -24.5),
    (445.5, 0, -2.5),
    (-445.5, 0, -2.5),
    (-445.5, 0, -24.5),
    (0, -546, -2.5),
    (0, 546, -2.5),
]))
fillet.Radius = 3
doc.recompute()

fillet2 = body.newObject("PartDesign::Fillet", "Fillet001")
fillet2.Base = (fillet, edges_at(fillet, [
    (448, 0, -27),
    (448, 0, 0),
    (0, -548.5, 0),
    (-448, 0, 0),
    (-448, 0, -27),
    (0, 548.5, 0),
]))
fillet2.Radius = 5.5

# Sketch on XY plane
sketch21 = body.newObject("Sketcher::SketchObject", "Sketch020")
sketch21.AttachmentSupport = (doc.getObject("XY_Plane"), [""])
sketch21.MapMode = "FlatFace"
sketch21.addGeometry(Part.Circle(V(-420, 498.5, 0), V(0, 0, 1), 3.4), False)
sketch21.addConstraint(Sketcher.Constraint("Diameter", 0, 6.8))
sketch21.addConstraint(Sketcher.Constraint("DistanceX", 0, 3, -1, 1, 420.0))
sketch21.addConstraint(Sketcher.Constraint("DistanceY", -1, 1, 0, 3, 498.5))
doc.recompute()
hole3 = body.newObject("PartDesign::Hole", "Hole002")
hole3.Profile = sketch21
hole3.ThreadType = "None"
hole3.Diameter = 6.8
hole3.DepthType = "Dimension"
hole3.Depth = 40
hole3.DrillPoint = "Angled"
hole3.DrillPointAngle = 118

# Sketch on XY plane
sketch22 = body.newObject("Sketcher::SketchObject", "Sketch021")
sketch22.AttachmentSupport = (doc.getObject("XY_Plane"), [""])
sketch22.MapMode = "FlatFace"
sketch22.addGeometry(Part.Circle(V(-95, 498.5, 0), V(0, 0, 1), 3.4), False)
sketch22.addGeometry(Part.Circle(V(95, 501, 0), V(0, 0, 1), 3.4), False)
sketch22.addGeometry(Part.Circle(V(420, 501, 0), V(0, 0, 1), 3.4), False)
sketch22.addGeometry(Part.Circle(V(420, 191, 0), V(0, 0, 1), 3.4), False)
sketch22.addGeometry(Part.Circle(V(420, 123.5, 0), V(0, 0, 1), 3.4), False)
sketch22.addGeometry(Part.Circle(V(95, 191, 0), V(0, 0, 1), 3.4), False)
sketch22.addGeometry(Part.Circle(V(95, 123.5, 0), V(0, 0, 1), 3.4), False)
sketch22.addGeometry(Part.Circle(V(95, -96.5, 0), V(0, 0, 1), 3.4), False)
sketch22.addGeometry(Part.Circle(V(95, -164, 0), V(0, 0, 1), 3.4), False)
sketch22.addGeometry(Part.Circle(V(420, -96.5, 0), V(0, 0, 1), 3.4), False)
sketch22.addGeometry(Part.Circle(V(420, -164, 0), V(0, 0, 1), 3.4), False)
sketch22.addGeometry(Part.Circle(V(420, -384, 0), V(0, 0, 1), 3.4), False)
sketch22.addGeometry(Part.Circle(V(95, -384, 0), V(0, 0, 1), 3.4), False)
sketch22.addGeometry(Part.Circle(V(-95, -384, 0), V(0, 0, 1), 3.4), False)
sketch22.addGeometry(Part.Circle(V(-420, -384, 0), V(0, 0, 1), 3.4), False)
sketch22.addGeometry(Part.Circle(V(-420, -74, 0), V(0, 0, 1), 3.4), False)
sketch22.addGeometry(Part.Circle(V(-420, -16.5, 0), V(0, 0, 1), 3.4), False)
sketch22.addGeometry(Part.Circle(V(-95, -16.5, 0), V(0, 0, 1), 3.4), False)
sketch22.addGeometry(Part.Circle(V(-95, -74, 0), V(0, 0, 1), 3.4), False)
sketch22.addConstraint(Sketcher.Constraint("Equal", 0, 1))
sketch22.addConstraint(Sketcher.Constraint("Equal", 1, 2))
sketch22.addConstraint(Sketcher.Constraint("Equal", 2, 3))
sketch22.addConstraint(Sketcher.Constraint("Equal", 3, 4))
sketch22.addConstraint(Sketcher.Constraint("Equal", 4, 5))
sketch22.addConstraint(Sketcher.Constraint("Equal", 5, 6))
sketch22.addConstraint(Sketcher.Constraint("Equal", 6, 7))
sketch22.addConstraint(Sketcher.Constraint("Equal", 7, 8))
sketch22.addConstraint(Sketcher.Constraint("Equal", 8, 9))
sketch22.addConstraint(Sketcher.Constraint("Equal", 9, 10))
sketch22.addConstraint(Sketcher.Constraint("Equal", 10, 11))
sketch22.addConstraint(Sketcher.Constraint("Equal", 11, 12))
sketch22.addConstraint(Sketcher.Constraint("Equal", 12, 13))
sketch22.addConstraint(Sketcher.Constraint("Equal", 13, 14))
sketch22.addConstraint(Sketcher.Constraint("Equal", 14, 15))
sketch22.addConstraint(Sketcher.Constraint("Equal", 15, 16))
sketch22.addConstraint(Sketcher.Constraint("Equal", 16, 17))
sketch22.addConstraint(Sketcher.Constraint("Equal", 17, 18))
sketch22.addConstraint(Sketcher.Constraint("Symmetric", 12, 3, 13, 3, -2))
sketch22.addConstraint(Sketcher.Constraint("Symmetric", 11, 3, 14, 3, -2))
sketch22.addConstraint(Sketcher.Constraint("Horizontal", 1, 3, 2, 3))
sketch22.addConstraint(Sketcher.Constraint("Horizontal", 3, 3, 5, 3))
sketch22.addConstraint(Sketcher.Constraint("Horizontal", 4, 3, 6, 3))
sketch22.addConstraint(Sketcher.Constraint("Horizontal", 7, 3, 9, 3))
sketch22.addConstraint(Sketcher.Constraint("Horizontal", 8, 3, 10, 3))
sketch22.addConstraint(Sketcher.Constraint("Horizontal", 11, 3, 12, 3))
sketch22.addConstraint(Sketcher.Constraint("Horizontal", 16, 3, 17, 3))
sketch22.addConstraint(Sketcher.Constraint("Horizontal", 15, 3, 18, 3))
sketch22.addConstraint(Sketcher.Constraint("Vertical", 2, 3, 3, 3))
sketch22.addConstraint(Sketcher.Constraint("Vertical", 3, 3, 4, 3))
sketch22.addConstraint(Sketcher.Constraint("Vertical", 1, 3, 5, 3))
sketch22.addConstraint(Sketcher.Constraint("Vertical", 5, 3, 6, 3))
sketch22.addConstraint(Sketcher.Constraint("Vertical", 6, 3, 7, 3))
sketch22.addConstraint(Sketcher.Constraint("Vertical", 7, 3, 8, 3))
sketch22.addConstraint(Sketcher.Constraint("Vertical", 4, 3, 9, 3))
sketch22.addConstraint(Sketcher.Constraint("Vertical", 9, 3, 10, 3))
sketch22.addConstraint(Sketcher.Constraint("Vertical", 10, 3, 11, 3))
sketch22.addConstraint(Sketcher.Constraint("Vertical", 8, 3, 12, 3))
sketch22.addConstraint(Sketcher.Constraint("Vertical", 0, 3, 13, 3))
sketch22.addConstraint(Sketcher.Constraint("Vertical", 14, 3, 15, 3))
sketch22.addConstraint(Sketcher.Constraint("Vertical", 15, 3, 16, 3))
sketch22.addConstraint(Sketcher.Constraint("Vertical", 13, 3, 17, 3))
sketch22.addConstraint(Sketcher.Constraint("Vertical", 17, 3, 18, 3))
sketch22.addConstraint(Sketcher.Constraint("Diameter", 0, 6.8))
sketch22.addConstraint(Sketcher.Constraint("DistanceX", 0, 3, -1, 1, 95.0))
sketch22.addConstraint(Sketcher.Constraint("DistanceY", -1, 1, 1, 3, 501.0))
sketch22.addConstraint(Sketcher.Constraint("DistanceX", -1, 1, 2, 3, 420.0))
sketch22.addConstraint(Sketcher.Constraint("DistanceY", -1, 1, 3, 3, 191.0))
sketch22.addConstraint(Sketcher.Constraint("DistanceY", 8, 3, -1, 1, 164.0))
sketch22.addConstraint(Sketcher.Constraint("DistanceY", 11, 3, -1, 1, 384.0))
sketch22.addConstraint(Sketcher.Constraint("DistanceY", 15, 3, -1, 1, 74.0))
sketch22.addConstraint(Sketcher.Constraint("DistanceY", 4, 3, 0, 3, 375.0))
sketch22.addConstraint(Sketcher.Constraint("DistanceY", 7, 3, 6, 3, 220.0))
sketch22.addConstraint(Sketcher.Constraint("DistanceY", 7, 3, 16, 3, 80.0))
sketch22.addConstraint(Sketcher.Constraint("DistanceY", -1, 1, 0, 3, 498.5))
doc.recompute()
hole4 = body.newObject("PartDesign::Hole", "Hole003")
hole4.Profile = sketch22
hole4.ThreadType = "None"
hole4.Diameter = 6.8
hole4.DepthType = "Dimension"
hole4.Depth = 40
hole4.DrillPoint = "Angled"
hole4.DrillPointAngle = 118

doc.recompute()
